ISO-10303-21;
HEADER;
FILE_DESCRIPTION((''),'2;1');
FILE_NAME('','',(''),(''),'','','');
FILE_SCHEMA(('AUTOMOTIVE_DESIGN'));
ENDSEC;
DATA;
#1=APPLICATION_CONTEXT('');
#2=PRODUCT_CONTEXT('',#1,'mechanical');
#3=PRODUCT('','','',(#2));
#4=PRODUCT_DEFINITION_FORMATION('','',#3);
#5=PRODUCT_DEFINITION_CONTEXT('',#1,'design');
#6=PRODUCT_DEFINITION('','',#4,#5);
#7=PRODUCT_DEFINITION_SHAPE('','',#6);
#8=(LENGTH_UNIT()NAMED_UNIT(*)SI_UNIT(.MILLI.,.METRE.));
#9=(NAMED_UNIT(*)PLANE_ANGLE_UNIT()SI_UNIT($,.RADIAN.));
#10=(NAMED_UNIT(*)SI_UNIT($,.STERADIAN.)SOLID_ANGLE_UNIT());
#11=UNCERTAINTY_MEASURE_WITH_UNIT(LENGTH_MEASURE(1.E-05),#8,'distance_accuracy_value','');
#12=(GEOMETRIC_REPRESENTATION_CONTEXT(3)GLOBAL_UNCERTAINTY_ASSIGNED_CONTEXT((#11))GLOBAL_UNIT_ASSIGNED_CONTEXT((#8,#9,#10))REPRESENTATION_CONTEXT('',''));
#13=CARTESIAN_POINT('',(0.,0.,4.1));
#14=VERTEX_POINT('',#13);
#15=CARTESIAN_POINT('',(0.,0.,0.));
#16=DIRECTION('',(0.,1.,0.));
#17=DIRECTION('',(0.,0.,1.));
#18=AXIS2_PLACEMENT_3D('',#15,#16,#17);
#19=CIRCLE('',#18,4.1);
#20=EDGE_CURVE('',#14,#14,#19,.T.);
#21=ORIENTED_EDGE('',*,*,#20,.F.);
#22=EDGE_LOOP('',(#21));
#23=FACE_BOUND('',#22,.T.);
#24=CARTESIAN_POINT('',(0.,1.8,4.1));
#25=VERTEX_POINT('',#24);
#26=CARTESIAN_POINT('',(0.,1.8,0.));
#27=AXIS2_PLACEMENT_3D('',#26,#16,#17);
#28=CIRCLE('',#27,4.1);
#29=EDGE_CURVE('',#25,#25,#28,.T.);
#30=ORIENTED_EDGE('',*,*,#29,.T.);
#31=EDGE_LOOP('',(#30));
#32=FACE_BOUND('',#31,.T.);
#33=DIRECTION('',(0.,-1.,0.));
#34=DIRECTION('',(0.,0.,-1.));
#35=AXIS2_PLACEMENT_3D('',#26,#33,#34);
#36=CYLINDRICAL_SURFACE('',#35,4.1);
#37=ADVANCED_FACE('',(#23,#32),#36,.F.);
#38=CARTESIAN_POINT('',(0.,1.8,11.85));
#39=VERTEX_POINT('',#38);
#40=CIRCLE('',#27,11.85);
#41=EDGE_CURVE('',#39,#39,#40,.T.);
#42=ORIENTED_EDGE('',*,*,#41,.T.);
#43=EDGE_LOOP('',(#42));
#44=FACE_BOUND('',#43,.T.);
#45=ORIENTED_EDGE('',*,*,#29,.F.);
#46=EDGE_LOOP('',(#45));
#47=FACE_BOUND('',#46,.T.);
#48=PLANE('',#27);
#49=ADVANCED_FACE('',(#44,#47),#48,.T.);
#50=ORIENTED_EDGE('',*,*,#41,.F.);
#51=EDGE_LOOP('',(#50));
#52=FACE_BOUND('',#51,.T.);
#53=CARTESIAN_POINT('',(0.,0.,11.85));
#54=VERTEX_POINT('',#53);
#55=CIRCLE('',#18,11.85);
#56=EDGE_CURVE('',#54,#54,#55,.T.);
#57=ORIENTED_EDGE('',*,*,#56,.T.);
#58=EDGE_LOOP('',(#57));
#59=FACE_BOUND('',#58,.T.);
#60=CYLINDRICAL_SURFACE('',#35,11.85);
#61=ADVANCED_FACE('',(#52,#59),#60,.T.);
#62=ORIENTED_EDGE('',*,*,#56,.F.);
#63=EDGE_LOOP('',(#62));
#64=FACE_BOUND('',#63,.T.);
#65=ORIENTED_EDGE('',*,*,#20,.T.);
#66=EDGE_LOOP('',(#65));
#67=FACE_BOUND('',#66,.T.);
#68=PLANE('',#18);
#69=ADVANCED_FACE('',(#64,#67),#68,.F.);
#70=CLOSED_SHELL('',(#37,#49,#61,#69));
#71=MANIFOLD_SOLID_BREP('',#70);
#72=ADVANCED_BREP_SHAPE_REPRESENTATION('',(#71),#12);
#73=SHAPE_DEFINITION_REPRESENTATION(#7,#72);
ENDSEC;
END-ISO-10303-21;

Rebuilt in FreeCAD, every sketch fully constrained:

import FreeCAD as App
import Part
import Sketcher
Q = App.Units.Quantity

doc = App.newDocument("Part")
body = doc.addObject("PartDesign::Body", "Body")

sketch1 = body.newObject("Sketcher::SketchObject", "Sketch")
sketch1.AttachmentSupport = (doc.getObject("XZ_Plane"), [""])
sketch1.MapMode = "FlatFace"
sketch1.addGeometry([
    Part.Circle(App.Vector(0, 0, 0), App.Vector(0, 0, 1), 11.8),
    Part.Circle(App.Vector(0, 0, 0), App.Vector(0, 0, 1), 4.1),
], False)
sketch1.addConstraint([
    Sketcher.Constraint("Coincident", 0, 3, -1, 1),
    Sketcher.Constraint("Coincident", 1, 3, -1, 1),
    Sketcher.Constraint("Diameter", 0, Q("23.7 mm")),
    Sketcher.Constraint("Diameter", 1, Q("8.2 mm")),
])
pad1 = body.newObject("PartDesign::Pad", "Pad")
pad1.Profile = sketch1
pad1.Length = 1.8
pad1.Reversed = True

doc.recompute()
